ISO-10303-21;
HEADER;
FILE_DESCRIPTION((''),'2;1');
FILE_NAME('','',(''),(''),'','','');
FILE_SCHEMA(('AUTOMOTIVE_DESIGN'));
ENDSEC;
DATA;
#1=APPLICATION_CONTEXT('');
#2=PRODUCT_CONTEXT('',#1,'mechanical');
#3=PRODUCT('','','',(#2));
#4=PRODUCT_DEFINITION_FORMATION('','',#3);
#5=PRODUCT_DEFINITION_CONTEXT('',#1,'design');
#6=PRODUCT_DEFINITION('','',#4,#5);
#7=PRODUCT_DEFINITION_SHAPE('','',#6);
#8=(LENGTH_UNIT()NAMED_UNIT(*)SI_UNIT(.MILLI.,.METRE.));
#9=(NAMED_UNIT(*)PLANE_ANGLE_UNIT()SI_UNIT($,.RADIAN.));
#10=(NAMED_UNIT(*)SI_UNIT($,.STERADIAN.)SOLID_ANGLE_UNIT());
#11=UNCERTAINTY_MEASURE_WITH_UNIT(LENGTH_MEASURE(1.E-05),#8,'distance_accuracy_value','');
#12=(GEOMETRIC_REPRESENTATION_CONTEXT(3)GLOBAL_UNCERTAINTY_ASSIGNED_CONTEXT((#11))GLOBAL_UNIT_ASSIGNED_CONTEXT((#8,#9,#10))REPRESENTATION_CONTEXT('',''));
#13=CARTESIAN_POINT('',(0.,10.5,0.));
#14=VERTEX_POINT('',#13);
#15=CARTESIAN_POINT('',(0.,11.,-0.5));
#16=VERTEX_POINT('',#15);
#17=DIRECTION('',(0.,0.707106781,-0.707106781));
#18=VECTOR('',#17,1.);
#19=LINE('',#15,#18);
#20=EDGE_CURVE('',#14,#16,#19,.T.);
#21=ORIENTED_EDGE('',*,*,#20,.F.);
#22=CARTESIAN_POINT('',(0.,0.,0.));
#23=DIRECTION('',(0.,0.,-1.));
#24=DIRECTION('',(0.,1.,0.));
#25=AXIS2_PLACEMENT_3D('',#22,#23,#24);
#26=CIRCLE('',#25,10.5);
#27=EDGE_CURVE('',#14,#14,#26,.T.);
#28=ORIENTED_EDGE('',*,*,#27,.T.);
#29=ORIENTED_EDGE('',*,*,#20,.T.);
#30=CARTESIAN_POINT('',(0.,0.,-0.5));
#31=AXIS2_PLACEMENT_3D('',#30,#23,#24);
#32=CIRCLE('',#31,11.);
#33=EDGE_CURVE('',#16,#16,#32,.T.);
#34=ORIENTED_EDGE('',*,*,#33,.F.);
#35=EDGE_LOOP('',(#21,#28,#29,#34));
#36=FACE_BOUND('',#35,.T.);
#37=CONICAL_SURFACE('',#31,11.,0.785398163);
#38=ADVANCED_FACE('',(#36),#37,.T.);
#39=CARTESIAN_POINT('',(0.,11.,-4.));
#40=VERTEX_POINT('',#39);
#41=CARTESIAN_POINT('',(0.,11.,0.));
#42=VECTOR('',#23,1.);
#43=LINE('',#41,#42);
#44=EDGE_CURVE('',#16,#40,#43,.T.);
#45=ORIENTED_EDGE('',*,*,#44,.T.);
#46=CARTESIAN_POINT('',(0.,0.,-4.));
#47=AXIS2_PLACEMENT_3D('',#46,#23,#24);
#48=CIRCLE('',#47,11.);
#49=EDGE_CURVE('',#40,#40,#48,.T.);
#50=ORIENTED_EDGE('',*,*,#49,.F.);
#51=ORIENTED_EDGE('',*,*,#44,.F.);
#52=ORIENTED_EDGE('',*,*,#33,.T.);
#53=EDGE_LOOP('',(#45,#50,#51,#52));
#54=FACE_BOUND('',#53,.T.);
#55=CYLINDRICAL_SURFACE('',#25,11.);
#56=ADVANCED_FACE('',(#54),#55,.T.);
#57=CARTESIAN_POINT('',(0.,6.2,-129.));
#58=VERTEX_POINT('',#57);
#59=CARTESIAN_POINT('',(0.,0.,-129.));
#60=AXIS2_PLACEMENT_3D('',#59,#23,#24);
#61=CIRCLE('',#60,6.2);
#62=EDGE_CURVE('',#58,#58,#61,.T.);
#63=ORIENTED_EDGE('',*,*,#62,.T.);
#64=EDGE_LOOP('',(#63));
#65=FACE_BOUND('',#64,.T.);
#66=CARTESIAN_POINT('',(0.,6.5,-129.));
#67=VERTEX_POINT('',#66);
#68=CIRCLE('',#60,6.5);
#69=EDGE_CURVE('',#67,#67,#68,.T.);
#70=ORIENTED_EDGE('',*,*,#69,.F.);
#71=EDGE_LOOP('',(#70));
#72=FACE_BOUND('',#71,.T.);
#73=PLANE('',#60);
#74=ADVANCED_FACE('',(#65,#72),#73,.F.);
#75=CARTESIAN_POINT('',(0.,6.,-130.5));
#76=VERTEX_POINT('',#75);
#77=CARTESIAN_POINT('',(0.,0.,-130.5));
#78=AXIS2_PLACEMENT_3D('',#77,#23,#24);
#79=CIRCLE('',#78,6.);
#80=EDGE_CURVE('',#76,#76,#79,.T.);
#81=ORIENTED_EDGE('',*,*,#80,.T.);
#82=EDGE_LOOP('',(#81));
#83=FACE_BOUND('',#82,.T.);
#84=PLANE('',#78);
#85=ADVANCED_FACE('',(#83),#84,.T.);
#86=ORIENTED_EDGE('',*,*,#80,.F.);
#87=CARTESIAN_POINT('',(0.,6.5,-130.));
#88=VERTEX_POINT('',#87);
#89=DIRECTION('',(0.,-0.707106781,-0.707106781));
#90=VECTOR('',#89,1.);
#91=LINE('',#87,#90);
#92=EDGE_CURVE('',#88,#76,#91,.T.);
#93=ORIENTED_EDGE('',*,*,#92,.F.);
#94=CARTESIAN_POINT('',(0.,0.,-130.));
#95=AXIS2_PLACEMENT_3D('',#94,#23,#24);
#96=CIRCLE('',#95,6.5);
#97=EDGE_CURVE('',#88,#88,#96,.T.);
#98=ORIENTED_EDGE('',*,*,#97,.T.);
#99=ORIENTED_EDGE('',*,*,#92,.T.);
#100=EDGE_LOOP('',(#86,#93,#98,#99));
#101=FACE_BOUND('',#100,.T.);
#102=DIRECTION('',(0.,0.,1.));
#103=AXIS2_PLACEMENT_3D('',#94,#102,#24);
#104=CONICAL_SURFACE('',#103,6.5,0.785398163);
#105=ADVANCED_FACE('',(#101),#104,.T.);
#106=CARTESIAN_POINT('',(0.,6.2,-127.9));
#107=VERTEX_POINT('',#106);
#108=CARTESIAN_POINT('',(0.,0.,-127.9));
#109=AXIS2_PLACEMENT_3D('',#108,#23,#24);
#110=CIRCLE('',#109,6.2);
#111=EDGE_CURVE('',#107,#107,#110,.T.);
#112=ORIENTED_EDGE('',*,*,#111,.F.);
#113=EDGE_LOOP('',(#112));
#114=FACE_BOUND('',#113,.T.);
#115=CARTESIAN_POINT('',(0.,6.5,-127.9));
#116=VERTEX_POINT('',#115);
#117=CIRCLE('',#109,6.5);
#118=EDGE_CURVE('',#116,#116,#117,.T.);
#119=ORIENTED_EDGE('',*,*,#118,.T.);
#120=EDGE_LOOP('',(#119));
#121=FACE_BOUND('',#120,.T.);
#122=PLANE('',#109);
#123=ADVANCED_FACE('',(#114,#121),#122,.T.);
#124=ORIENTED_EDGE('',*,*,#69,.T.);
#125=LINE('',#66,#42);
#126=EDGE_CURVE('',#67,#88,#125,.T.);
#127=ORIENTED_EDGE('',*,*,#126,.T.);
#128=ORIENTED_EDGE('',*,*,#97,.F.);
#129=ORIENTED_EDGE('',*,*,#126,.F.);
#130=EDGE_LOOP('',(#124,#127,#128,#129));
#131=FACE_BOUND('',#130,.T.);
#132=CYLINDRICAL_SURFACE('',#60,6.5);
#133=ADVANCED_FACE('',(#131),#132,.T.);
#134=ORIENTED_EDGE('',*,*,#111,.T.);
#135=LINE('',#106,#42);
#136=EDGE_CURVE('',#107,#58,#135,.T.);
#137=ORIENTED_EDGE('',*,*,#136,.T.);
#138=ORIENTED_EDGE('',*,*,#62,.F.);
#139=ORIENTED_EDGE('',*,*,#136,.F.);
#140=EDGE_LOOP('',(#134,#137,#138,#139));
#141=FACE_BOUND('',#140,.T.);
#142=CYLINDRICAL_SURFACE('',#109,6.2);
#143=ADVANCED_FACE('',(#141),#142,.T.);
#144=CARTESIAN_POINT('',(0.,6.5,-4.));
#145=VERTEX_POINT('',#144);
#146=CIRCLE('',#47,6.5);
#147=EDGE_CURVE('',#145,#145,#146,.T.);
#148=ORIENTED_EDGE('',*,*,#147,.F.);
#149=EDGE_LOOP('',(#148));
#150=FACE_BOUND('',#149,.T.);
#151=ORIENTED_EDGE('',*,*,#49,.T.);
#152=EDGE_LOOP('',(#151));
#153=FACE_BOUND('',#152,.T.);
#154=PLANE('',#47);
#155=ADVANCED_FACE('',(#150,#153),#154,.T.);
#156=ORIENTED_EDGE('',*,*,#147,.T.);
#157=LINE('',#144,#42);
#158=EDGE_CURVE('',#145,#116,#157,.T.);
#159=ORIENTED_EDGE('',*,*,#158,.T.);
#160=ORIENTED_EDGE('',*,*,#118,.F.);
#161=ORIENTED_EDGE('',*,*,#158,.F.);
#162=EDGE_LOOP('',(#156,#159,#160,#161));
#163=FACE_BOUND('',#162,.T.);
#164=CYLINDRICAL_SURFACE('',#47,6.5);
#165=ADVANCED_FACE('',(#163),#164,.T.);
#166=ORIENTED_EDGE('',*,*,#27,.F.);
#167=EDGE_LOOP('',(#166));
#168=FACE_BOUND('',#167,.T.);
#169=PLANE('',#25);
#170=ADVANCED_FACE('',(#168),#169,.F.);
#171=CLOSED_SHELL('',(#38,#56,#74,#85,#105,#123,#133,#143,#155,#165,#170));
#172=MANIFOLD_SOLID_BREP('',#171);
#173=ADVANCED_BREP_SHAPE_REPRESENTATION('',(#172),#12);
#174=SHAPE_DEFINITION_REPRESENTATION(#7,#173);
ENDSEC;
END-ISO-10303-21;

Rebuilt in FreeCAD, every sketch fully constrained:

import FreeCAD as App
import Part
import Sketcher

V = App.Vector


def edges_at(feature, points):
    """Names of the edges that pass closest to the given points."""
    edges = feature.Shape.Edges
    near = lambda p: min(range(len(edges)), key=lambda i: edges[i].distToShape(Part.Vertex(*p))[0])
    return sorted({f"Edge{near(p) + 1}" for p in points})


def add_polygon(sketch, points):
    """Adds a closed chain of lines whose ends are joined by coincident constraints."""
    first, n = sketch.GeometryCount, len(points)
    for a, b in zip(points, points[1:] + points[:1]):
        sketch.addGeometry(Part.LineSegment(App.Vector(*a, 0), App.Vector(*b, 0)), False)
    for i in range(n):
        sketch.addConstraint(Sketcher.Constraint("Coincident", first + i, 2, first + (i + 1) % n, 1))

doc = App.newDocument("Part")
body = doc.addObject("PartDesign::Body", "Body")

sketch1 = doc.addObject("Sketcher::SketchObject", "Sketch")
body.addObject(sketch1)
sketch1.AttachmentSupport = (doc.YZ_Plane, [""])
sketch1.MapMode = "FlatFace"
add_polygon(sketch1, [(11, 0), (0, 0), (0, -130.5), (6.5, -130.5), (6.5, -129), (6.2, -129), (6.2, -127.9), (6.5, -127.9), (6.5, -4), (11, -4)])
sketch1.addConstraint(Sketcher.Constraint("Horizontal", 0))
sketch1.addConstraint(Sketcher.Constraint("Vertical", 1))
sketch1.addConstraint(Sketcher.Constraint("Horizontal", 2))
sketch1.addConstraint(Sketcher.Constraint("Vertical", 3))
sketch1.addConstraint(Sketcher.Constraint("Horizontal", 4))
sketch1.addConstraint(Sketcher.Constraint("Vertical", 5))
sketch1.addConstraint(Sketcher.Constraint("Horizontal", 6))
sketch1.addConstraint(Sketcher.Constraint("Vertical", 7))
sketch1.addConstraint(Sketcher.Constraint("Horizontal", 8))
sketch1.addConstraint(Sketcher.Constraint("Vertical", 9))
sketch1.addConstraint(Sketcher.Constraint("Coincident", 0, 2, -1, 1))
sketch1.addConstraint(Sketcher.Constraint("Vertical", 3, 2, 6, 2))
sketch1.addConstraint(Sketcher.Constraint("DistanceY", 9, 1, 9, 2, 4.0))
sketch1.addConstraint(Sketcher.Constraint("DistanceY", 1, 2, 1, 1, 130.5))
sketch1.addConstraint(Sketcher.Constraint("DistanceY", 3, 1, 3, 2, 1.5))
sketch1.addConstraint(Sketcher.Constraint("DistanceY", 5, 1, 5, 2, 1.1))
sketch1.addConstraint(Sketcher.Constraint("DistanceX", 0, 2, 0, 1, 11.0))
sketch1.addConstraint(Sketcher.Constraint("DistanceX", 2, 1, 2, 2, 6.5))
sketch1.addConstraint(Sketcher.Constraint("DistanceX", 4, 2, 4, 1, 0.3))
revolution = doc.addObject("PartDesign::Revolution", "Revolution")
body.addObject(revolution)
revolution.Profile = sketch1
revolution.ReferenceAxis = (sketch1, ["V_Axis"])
revolution.Angle = 360
doc.recompute()

chamfer = doc.addObject("PartDesign::Chamfer", "Chamfer")
body.addObject(chamfer)
chamfer.Base = (revolution, edges_at(revolution, [(0, -11, 0), (0, -6.5, -130.5)]))
chamfer.Size = 0.5

doc.recompute()
